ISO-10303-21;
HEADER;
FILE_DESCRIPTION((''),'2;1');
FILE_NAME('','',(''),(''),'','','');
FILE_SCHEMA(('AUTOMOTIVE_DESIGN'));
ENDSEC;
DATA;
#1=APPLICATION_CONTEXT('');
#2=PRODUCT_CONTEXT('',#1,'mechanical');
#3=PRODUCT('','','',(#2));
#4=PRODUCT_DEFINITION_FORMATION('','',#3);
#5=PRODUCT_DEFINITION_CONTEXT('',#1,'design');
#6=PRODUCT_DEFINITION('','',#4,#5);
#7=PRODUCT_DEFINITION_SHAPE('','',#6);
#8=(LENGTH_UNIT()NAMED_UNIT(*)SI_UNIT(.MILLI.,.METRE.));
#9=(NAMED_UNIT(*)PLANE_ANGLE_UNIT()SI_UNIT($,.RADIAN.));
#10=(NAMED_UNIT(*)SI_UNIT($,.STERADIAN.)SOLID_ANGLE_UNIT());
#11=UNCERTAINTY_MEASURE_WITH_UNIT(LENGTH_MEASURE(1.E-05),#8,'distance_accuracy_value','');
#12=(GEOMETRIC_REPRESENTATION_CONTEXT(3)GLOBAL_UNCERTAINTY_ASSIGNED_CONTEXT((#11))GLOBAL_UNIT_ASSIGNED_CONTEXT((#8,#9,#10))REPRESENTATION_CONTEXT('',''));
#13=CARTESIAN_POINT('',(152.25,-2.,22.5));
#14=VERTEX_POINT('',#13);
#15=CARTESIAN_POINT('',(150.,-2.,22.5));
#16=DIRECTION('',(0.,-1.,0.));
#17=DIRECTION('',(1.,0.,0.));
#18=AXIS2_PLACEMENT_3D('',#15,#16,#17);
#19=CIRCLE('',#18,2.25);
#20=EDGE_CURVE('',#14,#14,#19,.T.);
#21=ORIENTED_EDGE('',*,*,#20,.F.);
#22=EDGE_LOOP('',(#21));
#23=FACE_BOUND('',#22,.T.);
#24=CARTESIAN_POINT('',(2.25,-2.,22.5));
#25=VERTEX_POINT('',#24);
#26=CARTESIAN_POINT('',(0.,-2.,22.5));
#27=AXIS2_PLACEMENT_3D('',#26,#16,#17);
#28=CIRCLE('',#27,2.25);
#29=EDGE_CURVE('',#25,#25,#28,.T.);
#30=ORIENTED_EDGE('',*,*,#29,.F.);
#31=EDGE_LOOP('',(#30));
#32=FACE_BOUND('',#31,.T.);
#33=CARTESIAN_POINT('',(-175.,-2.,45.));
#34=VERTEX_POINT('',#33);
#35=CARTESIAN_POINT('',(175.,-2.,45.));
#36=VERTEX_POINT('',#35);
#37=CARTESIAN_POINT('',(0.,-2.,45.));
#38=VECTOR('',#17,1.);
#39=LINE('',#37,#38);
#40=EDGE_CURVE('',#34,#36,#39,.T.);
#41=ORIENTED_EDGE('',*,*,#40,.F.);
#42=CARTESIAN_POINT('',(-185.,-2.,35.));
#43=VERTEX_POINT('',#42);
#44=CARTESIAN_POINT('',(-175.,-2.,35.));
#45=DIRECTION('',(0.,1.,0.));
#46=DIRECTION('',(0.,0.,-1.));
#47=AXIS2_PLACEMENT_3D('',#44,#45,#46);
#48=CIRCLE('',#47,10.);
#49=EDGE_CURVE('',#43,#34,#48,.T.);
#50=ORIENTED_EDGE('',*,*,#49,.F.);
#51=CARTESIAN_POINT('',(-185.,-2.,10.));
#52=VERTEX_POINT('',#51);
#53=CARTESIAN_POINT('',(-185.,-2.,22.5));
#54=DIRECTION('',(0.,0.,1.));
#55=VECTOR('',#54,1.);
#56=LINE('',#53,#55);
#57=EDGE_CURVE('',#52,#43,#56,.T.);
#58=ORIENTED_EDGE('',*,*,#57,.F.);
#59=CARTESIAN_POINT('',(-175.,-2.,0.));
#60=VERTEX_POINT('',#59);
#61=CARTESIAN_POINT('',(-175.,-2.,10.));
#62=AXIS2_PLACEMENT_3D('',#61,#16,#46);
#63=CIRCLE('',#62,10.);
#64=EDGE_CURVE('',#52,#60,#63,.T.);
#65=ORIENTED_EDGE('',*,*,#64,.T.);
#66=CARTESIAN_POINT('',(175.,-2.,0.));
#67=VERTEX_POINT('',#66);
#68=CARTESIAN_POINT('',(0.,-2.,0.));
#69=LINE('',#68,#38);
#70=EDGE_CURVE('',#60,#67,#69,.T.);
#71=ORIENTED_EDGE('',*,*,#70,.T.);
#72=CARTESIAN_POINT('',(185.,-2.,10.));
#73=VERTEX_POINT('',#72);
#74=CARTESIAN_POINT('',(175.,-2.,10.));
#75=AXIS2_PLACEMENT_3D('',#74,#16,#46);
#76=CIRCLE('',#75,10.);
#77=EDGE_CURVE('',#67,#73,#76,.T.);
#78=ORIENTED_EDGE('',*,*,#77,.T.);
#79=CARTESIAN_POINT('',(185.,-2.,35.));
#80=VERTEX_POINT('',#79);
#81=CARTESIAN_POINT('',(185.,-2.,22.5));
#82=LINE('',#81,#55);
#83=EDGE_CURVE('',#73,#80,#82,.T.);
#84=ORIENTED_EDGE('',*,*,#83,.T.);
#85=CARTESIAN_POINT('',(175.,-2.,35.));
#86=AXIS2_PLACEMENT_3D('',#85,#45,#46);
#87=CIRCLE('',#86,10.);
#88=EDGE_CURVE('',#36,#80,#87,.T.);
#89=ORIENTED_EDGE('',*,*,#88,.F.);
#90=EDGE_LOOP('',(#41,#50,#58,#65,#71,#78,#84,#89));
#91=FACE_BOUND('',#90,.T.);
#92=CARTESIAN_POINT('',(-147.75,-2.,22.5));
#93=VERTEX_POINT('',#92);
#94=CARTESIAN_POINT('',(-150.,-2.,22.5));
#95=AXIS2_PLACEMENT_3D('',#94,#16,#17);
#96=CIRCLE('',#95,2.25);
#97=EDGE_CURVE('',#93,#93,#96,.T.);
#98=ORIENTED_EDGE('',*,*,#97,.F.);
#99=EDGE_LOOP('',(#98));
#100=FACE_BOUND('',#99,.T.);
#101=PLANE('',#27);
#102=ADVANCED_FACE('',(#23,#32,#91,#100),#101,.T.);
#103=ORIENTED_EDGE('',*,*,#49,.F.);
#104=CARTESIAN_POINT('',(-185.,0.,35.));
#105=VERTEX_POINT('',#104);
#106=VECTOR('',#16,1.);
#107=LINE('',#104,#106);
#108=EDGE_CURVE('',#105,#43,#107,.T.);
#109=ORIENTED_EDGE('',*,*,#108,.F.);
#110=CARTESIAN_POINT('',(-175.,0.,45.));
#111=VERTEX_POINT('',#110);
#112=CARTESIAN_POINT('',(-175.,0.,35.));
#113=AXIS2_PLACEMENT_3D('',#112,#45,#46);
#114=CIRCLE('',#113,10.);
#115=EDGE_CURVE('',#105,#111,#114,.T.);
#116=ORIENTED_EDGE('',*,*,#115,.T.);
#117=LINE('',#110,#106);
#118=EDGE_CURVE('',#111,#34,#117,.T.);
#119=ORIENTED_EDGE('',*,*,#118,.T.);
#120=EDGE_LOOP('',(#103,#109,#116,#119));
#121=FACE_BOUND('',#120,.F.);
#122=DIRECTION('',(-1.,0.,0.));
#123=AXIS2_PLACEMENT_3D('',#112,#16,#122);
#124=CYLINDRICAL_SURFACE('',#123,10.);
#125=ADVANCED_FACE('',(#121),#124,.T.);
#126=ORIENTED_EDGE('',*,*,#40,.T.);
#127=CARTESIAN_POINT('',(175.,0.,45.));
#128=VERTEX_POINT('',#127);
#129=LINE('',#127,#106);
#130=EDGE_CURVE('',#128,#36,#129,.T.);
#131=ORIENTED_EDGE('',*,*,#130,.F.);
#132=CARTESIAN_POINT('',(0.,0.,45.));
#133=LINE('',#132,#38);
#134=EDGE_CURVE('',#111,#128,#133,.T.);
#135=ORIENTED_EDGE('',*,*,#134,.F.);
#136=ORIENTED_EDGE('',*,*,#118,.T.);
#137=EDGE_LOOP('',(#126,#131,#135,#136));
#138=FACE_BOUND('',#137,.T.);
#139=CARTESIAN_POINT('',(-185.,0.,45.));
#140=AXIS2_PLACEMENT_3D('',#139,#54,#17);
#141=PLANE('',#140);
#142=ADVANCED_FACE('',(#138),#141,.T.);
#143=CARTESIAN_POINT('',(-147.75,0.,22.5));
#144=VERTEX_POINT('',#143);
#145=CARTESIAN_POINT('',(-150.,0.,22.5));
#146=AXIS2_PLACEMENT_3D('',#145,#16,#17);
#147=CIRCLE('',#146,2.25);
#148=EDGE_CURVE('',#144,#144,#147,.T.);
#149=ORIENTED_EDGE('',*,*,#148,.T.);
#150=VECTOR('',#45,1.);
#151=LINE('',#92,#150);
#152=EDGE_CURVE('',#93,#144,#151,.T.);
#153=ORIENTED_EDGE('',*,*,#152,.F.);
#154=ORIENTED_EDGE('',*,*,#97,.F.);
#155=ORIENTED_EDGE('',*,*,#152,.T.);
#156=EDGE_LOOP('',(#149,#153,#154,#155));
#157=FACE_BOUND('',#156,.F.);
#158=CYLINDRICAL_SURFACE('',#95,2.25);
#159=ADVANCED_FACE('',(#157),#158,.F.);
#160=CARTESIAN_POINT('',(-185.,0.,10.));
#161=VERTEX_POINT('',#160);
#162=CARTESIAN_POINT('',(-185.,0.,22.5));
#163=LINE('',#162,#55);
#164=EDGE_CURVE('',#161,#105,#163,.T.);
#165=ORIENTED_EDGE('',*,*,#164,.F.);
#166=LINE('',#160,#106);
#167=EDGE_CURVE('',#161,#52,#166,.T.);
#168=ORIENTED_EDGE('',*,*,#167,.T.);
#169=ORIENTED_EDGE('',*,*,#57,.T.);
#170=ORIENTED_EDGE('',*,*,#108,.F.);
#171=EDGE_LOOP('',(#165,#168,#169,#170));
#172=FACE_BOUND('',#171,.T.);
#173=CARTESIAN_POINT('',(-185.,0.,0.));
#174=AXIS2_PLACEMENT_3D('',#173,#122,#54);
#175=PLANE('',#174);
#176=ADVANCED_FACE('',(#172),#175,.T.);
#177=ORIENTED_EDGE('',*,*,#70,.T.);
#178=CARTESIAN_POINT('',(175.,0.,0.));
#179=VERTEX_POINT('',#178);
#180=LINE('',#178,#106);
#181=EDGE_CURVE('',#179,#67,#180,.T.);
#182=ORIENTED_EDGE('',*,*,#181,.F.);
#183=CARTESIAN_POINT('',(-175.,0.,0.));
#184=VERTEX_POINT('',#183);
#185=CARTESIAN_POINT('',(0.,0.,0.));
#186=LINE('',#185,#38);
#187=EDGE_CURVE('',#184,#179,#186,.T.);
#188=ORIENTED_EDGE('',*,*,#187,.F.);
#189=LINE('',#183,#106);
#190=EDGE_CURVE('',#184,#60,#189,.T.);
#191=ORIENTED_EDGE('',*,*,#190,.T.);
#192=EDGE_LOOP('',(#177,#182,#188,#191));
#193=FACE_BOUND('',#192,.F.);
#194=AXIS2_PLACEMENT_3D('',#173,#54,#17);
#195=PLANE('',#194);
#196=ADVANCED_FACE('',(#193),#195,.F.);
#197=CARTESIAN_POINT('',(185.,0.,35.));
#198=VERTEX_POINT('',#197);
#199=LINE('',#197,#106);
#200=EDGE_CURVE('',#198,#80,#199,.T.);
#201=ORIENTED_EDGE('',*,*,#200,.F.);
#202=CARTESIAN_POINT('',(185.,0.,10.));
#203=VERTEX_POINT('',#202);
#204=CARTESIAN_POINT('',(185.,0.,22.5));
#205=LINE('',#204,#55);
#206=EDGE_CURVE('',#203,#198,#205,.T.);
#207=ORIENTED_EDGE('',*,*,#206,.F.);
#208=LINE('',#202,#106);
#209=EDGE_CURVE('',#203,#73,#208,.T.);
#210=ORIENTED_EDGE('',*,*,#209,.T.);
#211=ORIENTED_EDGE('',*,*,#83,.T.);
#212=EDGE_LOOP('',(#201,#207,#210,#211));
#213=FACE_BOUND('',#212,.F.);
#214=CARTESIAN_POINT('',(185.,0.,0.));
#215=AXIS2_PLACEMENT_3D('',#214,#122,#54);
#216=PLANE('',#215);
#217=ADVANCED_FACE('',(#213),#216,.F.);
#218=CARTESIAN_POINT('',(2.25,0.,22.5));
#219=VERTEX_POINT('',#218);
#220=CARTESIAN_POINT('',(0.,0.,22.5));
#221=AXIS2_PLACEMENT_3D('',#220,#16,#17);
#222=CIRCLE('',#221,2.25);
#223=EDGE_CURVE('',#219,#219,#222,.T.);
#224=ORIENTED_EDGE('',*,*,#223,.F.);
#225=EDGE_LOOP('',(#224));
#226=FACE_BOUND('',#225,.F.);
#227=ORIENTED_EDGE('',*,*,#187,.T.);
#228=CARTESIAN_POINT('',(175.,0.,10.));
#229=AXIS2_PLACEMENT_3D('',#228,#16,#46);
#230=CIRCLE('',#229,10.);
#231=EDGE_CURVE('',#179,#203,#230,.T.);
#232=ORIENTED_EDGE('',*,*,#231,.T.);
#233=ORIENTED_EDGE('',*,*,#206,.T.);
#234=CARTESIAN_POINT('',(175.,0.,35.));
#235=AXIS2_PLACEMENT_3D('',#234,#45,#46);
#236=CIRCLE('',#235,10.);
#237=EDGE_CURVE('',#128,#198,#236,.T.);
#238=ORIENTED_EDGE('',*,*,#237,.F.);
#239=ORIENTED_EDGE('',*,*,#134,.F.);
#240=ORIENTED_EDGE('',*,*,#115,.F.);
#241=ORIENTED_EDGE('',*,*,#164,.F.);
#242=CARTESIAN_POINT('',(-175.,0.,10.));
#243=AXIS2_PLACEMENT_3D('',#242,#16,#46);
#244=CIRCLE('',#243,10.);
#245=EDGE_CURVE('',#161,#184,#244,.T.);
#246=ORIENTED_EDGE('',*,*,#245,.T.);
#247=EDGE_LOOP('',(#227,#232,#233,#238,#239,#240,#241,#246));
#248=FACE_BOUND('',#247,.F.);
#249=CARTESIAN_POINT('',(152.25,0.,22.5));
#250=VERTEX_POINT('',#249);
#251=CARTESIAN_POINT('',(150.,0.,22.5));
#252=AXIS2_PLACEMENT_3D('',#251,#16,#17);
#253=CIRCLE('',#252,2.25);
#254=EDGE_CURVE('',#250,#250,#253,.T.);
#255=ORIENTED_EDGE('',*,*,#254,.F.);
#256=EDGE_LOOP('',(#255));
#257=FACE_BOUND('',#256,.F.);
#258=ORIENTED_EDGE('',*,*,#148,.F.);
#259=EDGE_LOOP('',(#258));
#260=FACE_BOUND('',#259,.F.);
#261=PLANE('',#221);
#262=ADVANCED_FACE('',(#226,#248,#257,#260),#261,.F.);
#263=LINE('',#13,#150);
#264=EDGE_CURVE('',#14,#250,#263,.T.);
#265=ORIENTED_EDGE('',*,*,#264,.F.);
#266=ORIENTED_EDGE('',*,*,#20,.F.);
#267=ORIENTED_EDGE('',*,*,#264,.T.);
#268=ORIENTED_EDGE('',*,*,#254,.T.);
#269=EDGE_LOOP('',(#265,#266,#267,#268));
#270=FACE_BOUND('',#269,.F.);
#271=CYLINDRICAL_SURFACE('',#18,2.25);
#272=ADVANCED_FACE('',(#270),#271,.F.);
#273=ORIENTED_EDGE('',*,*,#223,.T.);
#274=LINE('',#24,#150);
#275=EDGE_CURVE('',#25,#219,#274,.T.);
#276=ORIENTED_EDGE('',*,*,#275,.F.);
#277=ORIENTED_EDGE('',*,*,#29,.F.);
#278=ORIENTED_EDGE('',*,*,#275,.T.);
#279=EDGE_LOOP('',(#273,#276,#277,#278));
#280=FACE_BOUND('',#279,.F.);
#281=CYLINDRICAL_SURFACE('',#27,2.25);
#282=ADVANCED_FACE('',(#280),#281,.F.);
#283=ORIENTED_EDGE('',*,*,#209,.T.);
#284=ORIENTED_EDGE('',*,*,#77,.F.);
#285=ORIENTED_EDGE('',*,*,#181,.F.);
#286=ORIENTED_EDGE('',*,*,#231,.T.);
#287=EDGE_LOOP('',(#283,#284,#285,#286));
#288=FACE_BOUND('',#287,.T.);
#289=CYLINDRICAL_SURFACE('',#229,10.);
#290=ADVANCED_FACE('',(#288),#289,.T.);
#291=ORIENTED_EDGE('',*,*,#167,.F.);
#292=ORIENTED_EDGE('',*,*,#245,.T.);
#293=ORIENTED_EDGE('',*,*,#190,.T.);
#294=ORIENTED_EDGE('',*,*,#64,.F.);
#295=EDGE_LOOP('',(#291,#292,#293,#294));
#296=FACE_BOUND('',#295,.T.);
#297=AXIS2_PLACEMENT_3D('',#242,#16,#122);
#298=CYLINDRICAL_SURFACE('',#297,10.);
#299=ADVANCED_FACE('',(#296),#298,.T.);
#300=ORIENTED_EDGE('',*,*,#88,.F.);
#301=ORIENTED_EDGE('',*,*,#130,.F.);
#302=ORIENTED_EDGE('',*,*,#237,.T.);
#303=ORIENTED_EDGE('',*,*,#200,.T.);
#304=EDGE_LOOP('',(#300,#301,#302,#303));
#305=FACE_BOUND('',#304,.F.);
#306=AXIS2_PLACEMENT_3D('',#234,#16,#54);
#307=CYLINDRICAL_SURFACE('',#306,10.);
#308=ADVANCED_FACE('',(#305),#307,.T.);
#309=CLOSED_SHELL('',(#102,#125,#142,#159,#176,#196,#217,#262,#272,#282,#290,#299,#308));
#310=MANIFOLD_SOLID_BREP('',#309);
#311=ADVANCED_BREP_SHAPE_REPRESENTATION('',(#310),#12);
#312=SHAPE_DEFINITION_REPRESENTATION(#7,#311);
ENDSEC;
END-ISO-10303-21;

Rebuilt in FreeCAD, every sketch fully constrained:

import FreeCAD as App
import Part
import Sketcher

V = App.Vector


def edges_at(feature, points):
    """Names of the edges that pass closest to the given points."""
    edges = feature.Shape.Edges
    near = lambda p: min(range(len(edges)), key=lambda i: edges[i].distToShape(Part.Vertex(*p))[0])
    return sorted({f"Edge{near(p) + 1}" for p in points})

doc = App.newDocument("Part")
body = doc.addObject("PartDesign::Body", "Body")

# Sketch on XZ plane
sketch1 = doc.addObject("Sketcher::SketchObject", "Sketch")
body.addObject(sketch1)
sketch1.AttachmentSupport = (doc.XZ_Plane, [""])
sketch1.MapMode = "FlatFace"
sketch1.addGeometry([
    Part.LineSegment(V(-185, 45, 0), V(-185, 0, 0)),
    Part.LineSegment(V(-185, 0, 0), V(185, 0, 0)),
    Part.LineSegment(V(185, 0, 0), V(185, 45, 0)),
    Part.LineSegment(V(185, 45, 0), V(-185, 45, 0)),
], False)
sketch1.addConstraint([
    Sketcher.Constraint("Coincident", 0, 2, 1, 1),
    Sketcher.Constraint("Coincident", 1, 2, 2, 1),
    Sketcher.Constraint("Coincident", 2, 2, 3, 1),
    Sketcher.Constraint("Coincident", 3, 2, 0, 1),
    Sketcher.Constraint("Vertical", 0),
    Sketcher.Constraint("Horizontal", 1),
    Sketcher.Constraint("Vertical", 2),
    Sketcher.Constraint("Horizontal", 3),
    Sketcher.Constraint("Symmetric", 0, 2, 1, 2, -1, 1),
    Sketcher.Constraint("DistanceX", 1, 1, 1, 2, 370.0),
    Sketcher.Constraint("DistanceY", 0, 2, 0, 1, 45.0),
])
pad1 = doc.addObject("PartDesign::Pad", "Pad")
body.addObject(pad1)
pad1.Profile = sketch1
pad1.Length = 2

# Sketch on XZ plane
sketch2 = doc.addObject("Sketcher::SketchObject", "Sketch001")
body.addObject(sketch2)
sketch2.AttachmentSupport = (doc.XZ_Plane, [""])
sketch2.MapMode = "FlatFace"
sketch2.AttachmentOffset = App.Placement(V(0, 0, 2), App.Rotation())
sketch2.addGeometry([
    Part.Circle(V(0, 22.5, 0), V(0, 0, 1), 2.2),
    Part.Circle(V(-150, 22.5, 0), V(0, 0, 1), 2.2),
    Part.Circle(V(150, 22.5, 0), V(0, 0, 1), 2.2),
], False)
sketch2.addConstraint([
    Sketcher.Constraint("Equal", 0, 1),
    Sketcher.Constraint("Equal", 1, 2),
    Sketcher.Constraint("Symmetric", 1, 3, 2, 3, -2),
    Sketcher.Constraint("PointOnObject", 0, 3, -2),
    Sketcher.Constraint("Horizontal", 0, 3, 1, 3),
    Sketcher.Constraint("Diameter", 0, 4.5),
    Sketcher.Constraint("DistanceX", 1, 3, -1, 1, 150.0),
    Sketcher.Constraint("DistanceY", -1, 1, 0, 3, 22.5),
])
pocket1 = doc.addObject("PartDesign::Pocket", "Pocket")
body.addObject(pocket1)
pocket1.Profile = sketch2
pocket1.Length = 25
doc.recompute()

fillet = doc.addObject("PartDesign::Fillet", "Fillet")
body.addObject(fillet)
fillet.Base = (pocket1, edges_at(pocket1, [
    (185, -1, 45),
    (185, -1, 0),
    (-185, -1, 45),
    (-185, -1, 0),
]))
fillet.Radius = 10

doc.recompute()
